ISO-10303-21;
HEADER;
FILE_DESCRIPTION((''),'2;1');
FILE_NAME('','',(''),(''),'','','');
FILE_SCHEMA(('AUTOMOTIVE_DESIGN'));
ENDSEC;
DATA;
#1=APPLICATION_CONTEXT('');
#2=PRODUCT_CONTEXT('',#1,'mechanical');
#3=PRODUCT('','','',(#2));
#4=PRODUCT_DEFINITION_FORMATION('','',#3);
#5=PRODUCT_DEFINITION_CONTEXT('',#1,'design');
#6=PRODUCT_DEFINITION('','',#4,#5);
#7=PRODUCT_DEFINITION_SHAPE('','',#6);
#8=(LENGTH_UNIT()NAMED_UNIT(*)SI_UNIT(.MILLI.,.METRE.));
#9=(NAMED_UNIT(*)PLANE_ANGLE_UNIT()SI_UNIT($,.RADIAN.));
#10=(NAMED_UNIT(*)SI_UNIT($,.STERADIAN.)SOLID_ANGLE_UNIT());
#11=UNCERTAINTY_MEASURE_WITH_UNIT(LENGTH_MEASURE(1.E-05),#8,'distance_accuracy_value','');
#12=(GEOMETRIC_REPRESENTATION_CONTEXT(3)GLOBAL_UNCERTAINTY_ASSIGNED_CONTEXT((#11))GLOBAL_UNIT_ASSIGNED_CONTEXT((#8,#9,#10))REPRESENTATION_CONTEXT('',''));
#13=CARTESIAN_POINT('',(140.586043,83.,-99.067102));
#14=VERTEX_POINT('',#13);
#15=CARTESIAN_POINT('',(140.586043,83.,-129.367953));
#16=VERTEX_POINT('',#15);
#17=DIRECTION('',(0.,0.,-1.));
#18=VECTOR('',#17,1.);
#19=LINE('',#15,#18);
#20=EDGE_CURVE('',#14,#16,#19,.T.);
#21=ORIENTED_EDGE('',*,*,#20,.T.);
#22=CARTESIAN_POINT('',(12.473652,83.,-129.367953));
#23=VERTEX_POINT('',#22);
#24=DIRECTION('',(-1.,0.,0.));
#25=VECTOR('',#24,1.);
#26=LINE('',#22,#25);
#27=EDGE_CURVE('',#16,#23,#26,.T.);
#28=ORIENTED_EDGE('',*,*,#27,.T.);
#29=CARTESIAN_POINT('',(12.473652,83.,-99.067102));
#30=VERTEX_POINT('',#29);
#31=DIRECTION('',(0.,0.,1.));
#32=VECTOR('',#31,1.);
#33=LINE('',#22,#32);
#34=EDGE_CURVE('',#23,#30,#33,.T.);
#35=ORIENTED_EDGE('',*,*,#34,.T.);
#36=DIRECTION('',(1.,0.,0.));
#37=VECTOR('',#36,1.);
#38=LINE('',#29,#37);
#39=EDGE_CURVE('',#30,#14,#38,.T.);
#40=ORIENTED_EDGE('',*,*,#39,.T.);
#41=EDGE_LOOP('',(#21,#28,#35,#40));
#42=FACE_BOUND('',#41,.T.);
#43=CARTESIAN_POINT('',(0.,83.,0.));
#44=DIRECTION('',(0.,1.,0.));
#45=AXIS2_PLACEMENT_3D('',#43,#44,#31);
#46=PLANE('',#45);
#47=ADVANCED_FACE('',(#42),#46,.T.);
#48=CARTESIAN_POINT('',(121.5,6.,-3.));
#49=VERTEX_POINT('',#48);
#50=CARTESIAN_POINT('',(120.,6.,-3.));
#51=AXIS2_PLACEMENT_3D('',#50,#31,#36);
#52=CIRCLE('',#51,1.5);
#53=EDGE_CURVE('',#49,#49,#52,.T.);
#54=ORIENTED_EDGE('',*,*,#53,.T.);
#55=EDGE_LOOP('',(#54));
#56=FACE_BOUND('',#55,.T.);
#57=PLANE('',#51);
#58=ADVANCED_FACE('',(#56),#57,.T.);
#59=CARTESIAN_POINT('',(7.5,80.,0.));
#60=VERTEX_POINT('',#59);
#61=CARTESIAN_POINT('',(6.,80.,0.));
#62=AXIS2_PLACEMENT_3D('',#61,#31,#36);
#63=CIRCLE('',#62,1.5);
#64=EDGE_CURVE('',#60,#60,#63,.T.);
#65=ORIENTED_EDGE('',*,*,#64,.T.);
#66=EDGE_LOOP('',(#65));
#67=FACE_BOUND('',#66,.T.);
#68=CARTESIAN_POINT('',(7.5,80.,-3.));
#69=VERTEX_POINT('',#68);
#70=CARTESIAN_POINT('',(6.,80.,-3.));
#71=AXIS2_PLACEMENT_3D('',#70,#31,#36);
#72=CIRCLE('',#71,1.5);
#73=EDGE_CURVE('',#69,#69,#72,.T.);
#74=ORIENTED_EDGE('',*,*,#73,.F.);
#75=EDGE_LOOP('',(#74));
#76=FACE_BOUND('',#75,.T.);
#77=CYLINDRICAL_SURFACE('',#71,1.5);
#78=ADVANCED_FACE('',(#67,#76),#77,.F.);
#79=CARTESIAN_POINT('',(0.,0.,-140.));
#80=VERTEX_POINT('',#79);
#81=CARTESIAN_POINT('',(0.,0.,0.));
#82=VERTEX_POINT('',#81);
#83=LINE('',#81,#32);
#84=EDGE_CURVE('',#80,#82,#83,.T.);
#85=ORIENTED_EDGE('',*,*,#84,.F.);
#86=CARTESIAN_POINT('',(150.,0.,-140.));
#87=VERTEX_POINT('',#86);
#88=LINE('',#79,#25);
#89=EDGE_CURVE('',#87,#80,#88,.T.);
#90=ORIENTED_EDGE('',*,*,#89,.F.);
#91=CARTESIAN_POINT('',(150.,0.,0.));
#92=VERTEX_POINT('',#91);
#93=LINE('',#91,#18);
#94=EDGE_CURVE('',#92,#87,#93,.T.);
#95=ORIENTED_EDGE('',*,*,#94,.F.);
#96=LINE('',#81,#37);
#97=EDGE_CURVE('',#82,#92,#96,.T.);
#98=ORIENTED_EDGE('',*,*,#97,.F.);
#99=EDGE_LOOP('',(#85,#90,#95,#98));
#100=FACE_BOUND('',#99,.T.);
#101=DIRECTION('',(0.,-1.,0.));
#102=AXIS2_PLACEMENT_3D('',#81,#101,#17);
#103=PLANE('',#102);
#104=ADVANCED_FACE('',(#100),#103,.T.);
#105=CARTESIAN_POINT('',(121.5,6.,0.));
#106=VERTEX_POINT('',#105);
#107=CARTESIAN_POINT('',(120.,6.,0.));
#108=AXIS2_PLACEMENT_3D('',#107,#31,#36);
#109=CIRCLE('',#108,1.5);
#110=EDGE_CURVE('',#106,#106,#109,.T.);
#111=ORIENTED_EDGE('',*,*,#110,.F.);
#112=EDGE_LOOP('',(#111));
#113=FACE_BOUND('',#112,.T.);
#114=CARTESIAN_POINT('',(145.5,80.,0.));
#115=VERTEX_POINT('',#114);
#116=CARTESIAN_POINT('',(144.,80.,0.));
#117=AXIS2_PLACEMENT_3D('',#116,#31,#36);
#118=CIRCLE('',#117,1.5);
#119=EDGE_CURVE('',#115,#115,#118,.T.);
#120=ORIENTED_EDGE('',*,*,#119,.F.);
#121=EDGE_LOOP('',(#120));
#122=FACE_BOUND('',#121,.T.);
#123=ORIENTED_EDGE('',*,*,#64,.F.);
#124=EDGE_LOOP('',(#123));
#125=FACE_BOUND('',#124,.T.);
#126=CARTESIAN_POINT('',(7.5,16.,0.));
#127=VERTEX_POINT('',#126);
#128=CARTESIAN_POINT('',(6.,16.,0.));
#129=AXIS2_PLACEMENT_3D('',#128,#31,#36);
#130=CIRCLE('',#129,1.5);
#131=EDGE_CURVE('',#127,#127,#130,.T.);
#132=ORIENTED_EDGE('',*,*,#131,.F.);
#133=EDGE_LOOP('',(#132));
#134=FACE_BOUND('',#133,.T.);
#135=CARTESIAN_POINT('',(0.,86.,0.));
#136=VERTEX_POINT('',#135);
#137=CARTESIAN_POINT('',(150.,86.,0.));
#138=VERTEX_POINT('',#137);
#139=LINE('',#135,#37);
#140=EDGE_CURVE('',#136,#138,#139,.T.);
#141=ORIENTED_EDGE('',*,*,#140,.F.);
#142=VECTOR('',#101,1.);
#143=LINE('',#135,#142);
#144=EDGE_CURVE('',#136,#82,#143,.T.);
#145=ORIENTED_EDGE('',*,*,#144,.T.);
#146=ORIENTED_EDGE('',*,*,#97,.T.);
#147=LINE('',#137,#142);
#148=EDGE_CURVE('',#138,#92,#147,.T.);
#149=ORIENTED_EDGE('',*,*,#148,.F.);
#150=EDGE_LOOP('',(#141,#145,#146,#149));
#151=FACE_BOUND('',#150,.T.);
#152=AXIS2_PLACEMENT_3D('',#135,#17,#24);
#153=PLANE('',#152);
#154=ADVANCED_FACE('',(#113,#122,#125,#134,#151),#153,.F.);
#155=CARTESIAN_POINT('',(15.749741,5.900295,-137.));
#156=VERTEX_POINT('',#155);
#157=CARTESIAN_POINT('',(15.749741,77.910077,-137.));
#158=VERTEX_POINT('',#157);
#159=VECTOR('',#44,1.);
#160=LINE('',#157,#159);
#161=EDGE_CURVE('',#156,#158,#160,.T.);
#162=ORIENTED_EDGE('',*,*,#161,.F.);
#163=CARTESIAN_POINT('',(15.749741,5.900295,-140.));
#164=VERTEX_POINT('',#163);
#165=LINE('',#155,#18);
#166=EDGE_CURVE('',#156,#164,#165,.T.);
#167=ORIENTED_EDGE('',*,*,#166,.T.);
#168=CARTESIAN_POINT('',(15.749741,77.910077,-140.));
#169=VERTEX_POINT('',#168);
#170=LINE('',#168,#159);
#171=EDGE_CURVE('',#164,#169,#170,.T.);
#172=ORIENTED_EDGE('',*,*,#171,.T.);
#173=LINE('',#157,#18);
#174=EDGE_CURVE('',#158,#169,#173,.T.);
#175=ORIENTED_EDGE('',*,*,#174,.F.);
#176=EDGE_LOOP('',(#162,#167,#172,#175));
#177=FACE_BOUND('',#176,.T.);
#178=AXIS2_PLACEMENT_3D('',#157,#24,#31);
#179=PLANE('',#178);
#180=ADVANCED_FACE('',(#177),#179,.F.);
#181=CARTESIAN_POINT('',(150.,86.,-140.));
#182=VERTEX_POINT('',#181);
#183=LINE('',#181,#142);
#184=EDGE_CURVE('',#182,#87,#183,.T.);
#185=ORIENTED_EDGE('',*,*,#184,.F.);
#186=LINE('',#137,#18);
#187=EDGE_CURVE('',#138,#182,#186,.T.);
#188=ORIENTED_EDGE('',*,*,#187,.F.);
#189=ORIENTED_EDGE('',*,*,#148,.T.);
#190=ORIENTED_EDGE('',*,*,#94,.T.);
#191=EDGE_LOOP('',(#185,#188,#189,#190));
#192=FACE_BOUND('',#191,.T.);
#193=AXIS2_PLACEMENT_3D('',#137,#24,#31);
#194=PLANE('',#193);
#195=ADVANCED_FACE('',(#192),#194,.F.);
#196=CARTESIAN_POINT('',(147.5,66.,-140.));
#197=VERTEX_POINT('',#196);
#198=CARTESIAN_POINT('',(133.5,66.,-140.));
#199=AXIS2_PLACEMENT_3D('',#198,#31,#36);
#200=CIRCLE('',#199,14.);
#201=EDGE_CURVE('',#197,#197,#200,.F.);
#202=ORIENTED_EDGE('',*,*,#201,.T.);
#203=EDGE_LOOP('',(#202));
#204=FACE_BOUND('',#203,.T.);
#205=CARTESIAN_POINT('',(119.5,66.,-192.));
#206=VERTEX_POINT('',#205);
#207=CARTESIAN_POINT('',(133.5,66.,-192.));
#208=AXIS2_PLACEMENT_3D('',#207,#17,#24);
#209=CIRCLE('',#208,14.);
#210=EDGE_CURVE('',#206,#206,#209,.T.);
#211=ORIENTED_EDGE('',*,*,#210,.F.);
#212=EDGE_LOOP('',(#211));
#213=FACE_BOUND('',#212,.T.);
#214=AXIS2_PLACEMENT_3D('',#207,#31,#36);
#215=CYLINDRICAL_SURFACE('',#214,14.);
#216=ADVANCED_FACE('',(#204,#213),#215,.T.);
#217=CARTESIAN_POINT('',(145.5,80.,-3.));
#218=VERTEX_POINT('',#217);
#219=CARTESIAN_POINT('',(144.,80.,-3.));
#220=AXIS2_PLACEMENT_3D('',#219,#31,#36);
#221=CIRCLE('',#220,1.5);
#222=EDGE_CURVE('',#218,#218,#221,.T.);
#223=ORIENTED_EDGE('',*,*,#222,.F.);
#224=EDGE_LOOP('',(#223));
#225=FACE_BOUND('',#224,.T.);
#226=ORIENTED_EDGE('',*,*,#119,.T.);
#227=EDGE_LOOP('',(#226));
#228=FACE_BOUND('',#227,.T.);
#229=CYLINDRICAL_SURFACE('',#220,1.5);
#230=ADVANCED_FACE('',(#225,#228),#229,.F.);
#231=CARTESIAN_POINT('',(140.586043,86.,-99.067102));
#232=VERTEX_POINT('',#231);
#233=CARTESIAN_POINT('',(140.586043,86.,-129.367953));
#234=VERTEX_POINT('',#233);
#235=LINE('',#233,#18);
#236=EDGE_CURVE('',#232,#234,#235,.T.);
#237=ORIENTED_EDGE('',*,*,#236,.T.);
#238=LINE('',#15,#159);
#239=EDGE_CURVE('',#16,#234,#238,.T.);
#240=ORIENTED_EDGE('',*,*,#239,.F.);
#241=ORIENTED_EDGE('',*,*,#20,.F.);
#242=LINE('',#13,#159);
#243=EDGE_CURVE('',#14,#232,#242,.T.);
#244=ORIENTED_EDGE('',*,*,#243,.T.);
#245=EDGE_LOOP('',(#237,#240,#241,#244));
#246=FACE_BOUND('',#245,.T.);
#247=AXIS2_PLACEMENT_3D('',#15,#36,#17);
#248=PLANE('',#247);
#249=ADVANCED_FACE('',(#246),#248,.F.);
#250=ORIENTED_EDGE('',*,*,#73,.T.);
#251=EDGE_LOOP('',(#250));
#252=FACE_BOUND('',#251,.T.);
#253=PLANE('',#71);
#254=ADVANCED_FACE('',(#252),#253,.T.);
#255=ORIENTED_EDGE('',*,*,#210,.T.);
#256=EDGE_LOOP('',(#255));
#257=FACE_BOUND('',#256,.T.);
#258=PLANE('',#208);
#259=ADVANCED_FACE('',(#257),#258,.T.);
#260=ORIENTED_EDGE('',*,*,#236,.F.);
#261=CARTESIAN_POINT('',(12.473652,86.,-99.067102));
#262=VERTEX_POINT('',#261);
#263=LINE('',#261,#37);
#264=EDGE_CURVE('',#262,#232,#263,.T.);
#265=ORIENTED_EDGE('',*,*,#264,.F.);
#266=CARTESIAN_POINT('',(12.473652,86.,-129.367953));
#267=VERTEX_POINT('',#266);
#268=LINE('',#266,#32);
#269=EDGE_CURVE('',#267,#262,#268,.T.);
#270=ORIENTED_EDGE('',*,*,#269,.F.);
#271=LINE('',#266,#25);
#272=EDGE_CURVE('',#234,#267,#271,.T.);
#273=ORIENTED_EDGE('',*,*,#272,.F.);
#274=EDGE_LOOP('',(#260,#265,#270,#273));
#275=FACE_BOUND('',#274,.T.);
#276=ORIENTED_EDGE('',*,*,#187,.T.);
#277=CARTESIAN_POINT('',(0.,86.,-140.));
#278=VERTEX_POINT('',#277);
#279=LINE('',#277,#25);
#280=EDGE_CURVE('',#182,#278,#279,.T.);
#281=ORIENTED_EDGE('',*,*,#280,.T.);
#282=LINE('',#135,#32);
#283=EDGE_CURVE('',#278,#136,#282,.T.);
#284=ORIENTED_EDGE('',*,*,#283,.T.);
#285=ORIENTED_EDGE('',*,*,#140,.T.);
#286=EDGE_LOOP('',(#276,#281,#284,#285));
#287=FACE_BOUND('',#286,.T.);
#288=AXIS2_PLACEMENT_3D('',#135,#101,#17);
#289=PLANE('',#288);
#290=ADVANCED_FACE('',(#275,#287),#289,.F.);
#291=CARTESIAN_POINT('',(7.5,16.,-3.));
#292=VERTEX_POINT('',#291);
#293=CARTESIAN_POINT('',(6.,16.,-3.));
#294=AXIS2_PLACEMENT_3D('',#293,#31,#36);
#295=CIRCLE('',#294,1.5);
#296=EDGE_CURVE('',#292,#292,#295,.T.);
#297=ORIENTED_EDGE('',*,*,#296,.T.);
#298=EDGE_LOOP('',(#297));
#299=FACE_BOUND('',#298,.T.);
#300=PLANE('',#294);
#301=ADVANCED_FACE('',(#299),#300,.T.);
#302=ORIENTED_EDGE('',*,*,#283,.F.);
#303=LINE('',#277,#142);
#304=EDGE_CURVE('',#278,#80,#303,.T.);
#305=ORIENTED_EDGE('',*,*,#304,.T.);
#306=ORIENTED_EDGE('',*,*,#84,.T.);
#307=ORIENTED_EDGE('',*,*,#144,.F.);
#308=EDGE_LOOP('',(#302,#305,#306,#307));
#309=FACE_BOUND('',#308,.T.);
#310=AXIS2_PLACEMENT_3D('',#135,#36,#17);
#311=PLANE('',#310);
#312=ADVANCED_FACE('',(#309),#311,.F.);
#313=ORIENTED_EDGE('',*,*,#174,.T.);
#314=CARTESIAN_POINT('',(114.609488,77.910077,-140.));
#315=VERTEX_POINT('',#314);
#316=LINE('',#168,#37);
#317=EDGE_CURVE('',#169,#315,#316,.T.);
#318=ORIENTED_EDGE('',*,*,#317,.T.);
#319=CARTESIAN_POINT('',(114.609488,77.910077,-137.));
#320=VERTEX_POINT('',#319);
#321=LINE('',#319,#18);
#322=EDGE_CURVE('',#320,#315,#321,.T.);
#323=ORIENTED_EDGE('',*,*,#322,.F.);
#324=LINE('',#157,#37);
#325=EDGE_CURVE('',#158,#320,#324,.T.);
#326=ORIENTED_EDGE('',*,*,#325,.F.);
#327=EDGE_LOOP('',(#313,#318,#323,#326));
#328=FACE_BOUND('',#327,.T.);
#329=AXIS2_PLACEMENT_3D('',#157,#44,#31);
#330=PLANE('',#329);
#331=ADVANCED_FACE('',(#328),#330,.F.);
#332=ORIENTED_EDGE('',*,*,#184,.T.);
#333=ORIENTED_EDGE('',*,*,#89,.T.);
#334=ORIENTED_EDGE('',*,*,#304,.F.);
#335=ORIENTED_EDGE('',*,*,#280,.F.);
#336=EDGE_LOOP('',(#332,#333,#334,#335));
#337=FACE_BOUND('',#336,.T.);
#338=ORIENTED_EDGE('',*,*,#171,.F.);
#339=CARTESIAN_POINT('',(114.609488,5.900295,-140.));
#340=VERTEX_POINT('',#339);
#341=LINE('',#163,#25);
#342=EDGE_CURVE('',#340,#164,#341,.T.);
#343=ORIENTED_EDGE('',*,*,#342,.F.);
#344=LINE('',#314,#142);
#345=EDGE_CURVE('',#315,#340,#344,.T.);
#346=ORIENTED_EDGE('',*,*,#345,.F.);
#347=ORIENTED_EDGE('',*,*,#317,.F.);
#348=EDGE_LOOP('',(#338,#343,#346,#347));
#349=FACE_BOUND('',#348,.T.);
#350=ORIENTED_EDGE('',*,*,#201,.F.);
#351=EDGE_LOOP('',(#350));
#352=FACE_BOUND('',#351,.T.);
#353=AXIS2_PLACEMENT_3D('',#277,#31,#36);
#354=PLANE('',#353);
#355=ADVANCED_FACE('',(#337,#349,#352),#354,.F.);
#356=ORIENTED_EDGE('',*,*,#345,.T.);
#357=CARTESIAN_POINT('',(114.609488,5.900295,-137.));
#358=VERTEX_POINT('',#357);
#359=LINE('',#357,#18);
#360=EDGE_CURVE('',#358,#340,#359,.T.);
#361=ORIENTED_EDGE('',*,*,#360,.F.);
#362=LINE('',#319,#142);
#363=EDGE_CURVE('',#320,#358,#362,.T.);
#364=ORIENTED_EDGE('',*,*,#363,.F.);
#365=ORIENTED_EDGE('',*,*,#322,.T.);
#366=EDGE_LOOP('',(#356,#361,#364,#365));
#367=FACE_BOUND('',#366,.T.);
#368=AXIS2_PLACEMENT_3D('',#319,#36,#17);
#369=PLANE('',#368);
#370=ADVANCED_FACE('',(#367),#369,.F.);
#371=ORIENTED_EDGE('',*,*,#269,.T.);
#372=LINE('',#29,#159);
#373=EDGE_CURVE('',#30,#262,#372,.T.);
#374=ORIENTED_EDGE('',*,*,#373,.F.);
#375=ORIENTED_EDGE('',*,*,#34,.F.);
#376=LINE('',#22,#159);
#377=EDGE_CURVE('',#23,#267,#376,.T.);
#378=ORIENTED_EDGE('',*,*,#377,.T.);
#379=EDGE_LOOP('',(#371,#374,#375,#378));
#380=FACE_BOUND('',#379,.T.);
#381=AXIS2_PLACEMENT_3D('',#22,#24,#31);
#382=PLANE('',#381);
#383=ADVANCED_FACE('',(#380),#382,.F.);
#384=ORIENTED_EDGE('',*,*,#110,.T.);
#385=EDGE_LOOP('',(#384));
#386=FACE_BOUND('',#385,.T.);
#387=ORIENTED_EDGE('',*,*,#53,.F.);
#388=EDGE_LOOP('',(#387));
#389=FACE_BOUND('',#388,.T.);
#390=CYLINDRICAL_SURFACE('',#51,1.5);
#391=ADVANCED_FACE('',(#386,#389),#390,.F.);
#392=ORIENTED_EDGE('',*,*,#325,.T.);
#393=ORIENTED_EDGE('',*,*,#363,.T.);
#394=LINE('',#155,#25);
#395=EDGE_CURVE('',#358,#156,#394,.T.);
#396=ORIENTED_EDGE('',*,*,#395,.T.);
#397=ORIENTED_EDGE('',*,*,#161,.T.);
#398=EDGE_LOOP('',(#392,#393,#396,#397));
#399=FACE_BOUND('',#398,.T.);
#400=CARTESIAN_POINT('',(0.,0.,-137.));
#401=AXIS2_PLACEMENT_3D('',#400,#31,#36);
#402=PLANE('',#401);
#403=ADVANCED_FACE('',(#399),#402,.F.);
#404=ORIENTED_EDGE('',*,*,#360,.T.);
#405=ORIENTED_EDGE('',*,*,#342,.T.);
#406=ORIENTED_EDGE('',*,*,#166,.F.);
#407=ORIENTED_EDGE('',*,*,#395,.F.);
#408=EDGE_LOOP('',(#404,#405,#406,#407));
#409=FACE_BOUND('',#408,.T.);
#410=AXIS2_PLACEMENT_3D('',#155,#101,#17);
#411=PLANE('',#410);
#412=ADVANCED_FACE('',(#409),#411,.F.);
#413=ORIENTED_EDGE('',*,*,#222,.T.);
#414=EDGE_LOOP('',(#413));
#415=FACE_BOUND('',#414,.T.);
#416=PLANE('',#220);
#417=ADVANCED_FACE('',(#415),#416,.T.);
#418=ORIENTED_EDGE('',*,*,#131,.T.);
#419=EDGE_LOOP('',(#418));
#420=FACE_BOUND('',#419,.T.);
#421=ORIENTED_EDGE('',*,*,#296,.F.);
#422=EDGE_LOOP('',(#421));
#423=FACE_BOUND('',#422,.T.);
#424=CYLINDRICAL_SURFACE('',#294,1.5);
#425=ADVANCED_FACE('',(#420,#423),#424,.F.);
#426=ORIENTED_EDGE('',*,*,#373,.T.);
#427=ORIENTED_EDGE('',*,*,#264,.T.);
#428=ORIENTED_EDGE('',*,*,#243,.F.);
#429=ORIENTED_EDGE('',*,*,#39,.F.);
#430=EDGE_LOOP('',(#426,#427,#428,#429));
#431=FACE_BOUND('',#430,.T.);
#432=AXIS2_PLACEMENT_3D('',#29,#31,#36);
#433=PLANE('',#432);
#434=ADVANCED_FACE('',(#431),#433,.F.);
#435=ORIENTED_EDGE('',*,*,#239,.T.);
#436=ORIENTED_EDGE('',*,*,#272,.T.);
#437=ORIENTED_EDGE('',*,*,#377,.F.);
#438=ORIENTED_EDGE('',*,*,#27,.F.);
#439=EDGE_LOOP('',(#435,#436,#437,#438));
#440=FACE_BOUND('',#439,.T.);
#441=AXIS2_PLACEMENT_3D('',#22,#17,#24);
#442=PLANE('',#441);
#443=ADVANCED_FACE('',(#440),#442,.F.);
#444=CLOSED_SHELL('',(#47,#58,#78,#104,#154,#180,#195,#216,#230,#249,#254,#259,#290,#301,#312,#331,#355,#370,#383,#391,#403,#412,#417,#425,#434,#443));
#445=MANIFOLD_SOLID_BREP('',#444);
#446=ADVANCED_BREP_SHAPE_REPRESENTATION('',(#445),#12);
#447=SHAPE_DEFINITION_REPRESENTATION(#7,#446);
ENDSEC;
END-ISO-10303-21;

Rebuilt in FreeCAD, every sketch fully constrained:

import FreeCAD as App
import Part
import Sketcher

V = App.Vector
Q = App.Units.Quantity


def add_polygon(sketch, points):
    """Adds a closed chain of lines whose ends are joined by coincident constraints."""
    first, n = sketch.GeometryCount, len(points)
    for a, b in zip(points, points[1:] + points[:1]):
        sketch.addGeometry(Part.LineSegment(App.Vector(*a, 0), App.Vector(*b, 0)), False)
    for i in range(n):
        sketch.addConstraint(Sketcher.Constraint("Coincident", first + i, 2, first + (i + 1) % n, 1))

doc = App.newDocument("Part")
body = doc.addObject("PartDesign::Body", "Body")

# Sketch on XZ plane
sketch1 = body.newObject("Sketcher::SketchObject", "Sketch")
sketch1.AttachmentSupport = (doc.getObject("XZ_Plane"), [""])
sketch1.MapMode = "FlatFace"
add_polygon(sketch1, [(0, -140), (0, 0), (150, 0), (150, -140)])  # lines 0-3
sketch1.addConstraint([
    Sketcher.Constraint("Vertical", 0),
    Sketcher.Constraint("Horizontal", 1),
    Sketcher.Constraint("Vertical", 2),
    Sketcher.Constraint("Horizontal", 3),
    Sketcher.Constraint("Coincident", 0, 2, -1, 1),
    Sketcher.Constraint("DistanceX", 1, 1, 1, 2, Q("150 mm")),
    Sketcher.Constraint("DistanceY", 0, 1, 0, 2, Q("140 mm")),
])
pad1 = body.newObject("PartDesign::Pad", "Pad")
pad1.Profile = sketch1
pad1.Length = 86
pad1.Reversed = True

# Sketch on XY plane
sketch2 = body.newObject("Sketcher::SketchObject", "Sketch001")
sketch2.AttachmentSupport = (doc.getObject("XY_Plane"), [""])
sketch2.MapMode = "FlatFace"
sketch2.addGeometry([
    Part.Circle(V(6, 80, 0), V(0, 0, 1), 1.5),
    Part.Circle(V(6, 16, 0), V(0, 0, 1), 1.5),
    Part.Circle(V(120, 6, 0), V(0, 0, 1), 1.5),
    Part.Circle(V(144, 80, 0), V(0, 0, 1), 1.5),
], False)
sketch2.addConstraint([
    Sketcher.Constraint("Equal", 0, 1),
    Sketcher.Constraint("Equal", 1, 2),
    Sketcher.Constraint("Equal", 2, 3),
    Sketcher.Constraint("Horizontal", 0, 3, 3, 3),
    Sketcher.Constraint("Vertical", 0, 3, 1, 3),
    Sketcher.Constraint("Diameter", 0, Q("3 mm")),
    Sketcher.Constraint("DistanceX", -1, 1, 0, 3, Q("6 mm")),
    Sketcher.Constraint("DistanceY", -1, 1, 0, 3, Q("80 mm")),
    Sketcher.Constraint("DistanceY", -1, 1, 1, 3, Q("16 mm")),
    Sketcher.Constraint("DistanceX", -1, 1, 2, 3, Q("120 mm")),
    Sketcher.Constraint("DistanceY", -1, 1, 2, 3, Q("6 mm")),
    Sketcher.Constraint("DistanceX", -1, 1, 3, 3, Q("144 mm")),
])
pocket1 = body.newObject("PartDesign::Pocket", "Pocket")
pocket1.Profile = sketch2
pocket1.Length = 3

# Sketch on XZ plane
sketch3 = body.newObject("Sketcher::SketchObject", "Sketch002")
sketch3.AttachmentSupport = (doc.getObject("XZ_Plane"), [""])
sketch3.MapMode = "FlatFace"
sketch3.AttachmentOffset = App.Placement(V(0, 0, -86), App.Rotation())
add_polygon(sketch3, [(12.473652, -129.367953), (12.473652, -99.067102), (140.586043, -99.067102), (140.586043, -129.367953)])  # lines 0-3
sketch3.addConstraint([
    Sketcher.Constraint("Vertical", 0),
    Sketcher.Constraint("Horizontal", 1),
    Sketcher.Constraint("Vertical", 2),
    Sketcher.Constraint("Horizontal", 3),
    Sketcher.Constraint("DistanceX", 1, 1, 1, 2, Q("128.112391 mm")),
    Sketcher.Constraint("DistanceY", 0, 1, 0, 2, Q("30.30085 mm")),
    Sketcher.Constraint("DistanceX", -1, 1, 0, 2, Q("12.473652 mm")),
    Sketcher.Constraint("DistanceY", 0, 2, -1, 1, Q("99.067102 mm")),
])
pocket2 = body.newObject("PartDesign::Pocket", "Pocket001")
pocket2.Profile = sketch3
pocket2.Length = 3
pocket2.Reversed = True

# Sketch on XY plane
sketch4 = body.newObject("Sketcher::SketchObject", "Sketch003")
sketch4.AttachmentSupport = (doc.getObject("XY_Plane"), [""])
sketch4.MapMode = "FlatFace"
sketch4.AttachmentOffset = App.Placement(V(0, 0, -140), App.Rotation())
sketch4.addGeometry(Part.Circle(V(133.5, 66, 0), V(0, 0, 1), 14), False)
sketch4.addConstraint([
    Sketcher.Constraint("Diameter", 0, Q("28 mm")),
    Sketcher.Constraint("DistanceY", -1, 1, 0, 3, Q("66 mm")),
    Sketcher.Constraint("DistanceX", -1, 1, 0, 3, Q("133.5 mm")),
])
pad2 = body.newObject("PartDesign::Pad", "Pad001")
pad2.Profile = sketch4
pad2.Length = 52
pad2.Reversed = True

# Sketch on XY plane
sketch5 = body.newObject("Sketcher::SketchObject", "Sketch004")
sketch5.AttachmentSupport = (doc.getObject("XY_Plane"), [""])
sketch5.MapMode = "FlatFace"
sketch5.AttachmentOffset = App.Placement(V(0, 0, -140), App.Rotation())
add_polygon(sketch5, [(114.609488, 77.910077), (114.609488, 5.900295), (15.749741, 5.900295), (15.749741, 77.910077)])  # lines 0-3
sketch5.addConstraint([
    Sketcher.Constraint("Vertical", 0),
    Sketcher.Constraint("Horizontal", 1),
    Sketcher.Constraint("Vertical", 2),
    Sketcher.Constraint("Horizontal", 3),
    Sketcher.Constraint("DistanceY", 0, 2, 0, 1, Q("72.009782 mm")),
    Sketcher.Constraint("DistanceX", 1, 2, 1, 1, Q("98.859747 mm")),
    Sketcher.Constraint("DistanceX", -1, 1, 0, 2, Q("114.609488 mm")),
    Sketcher.Constraint("DistanceY", -1, 1, 0, 2, Q("5.900295 mm")),
])
pocket3 = body.newObject("PartDesign::Pocket", "Pocket002")
pocket3.Profile = sketch5
pocket3.Length = 3
pocket3.Reversed = True

doc.recompute()
